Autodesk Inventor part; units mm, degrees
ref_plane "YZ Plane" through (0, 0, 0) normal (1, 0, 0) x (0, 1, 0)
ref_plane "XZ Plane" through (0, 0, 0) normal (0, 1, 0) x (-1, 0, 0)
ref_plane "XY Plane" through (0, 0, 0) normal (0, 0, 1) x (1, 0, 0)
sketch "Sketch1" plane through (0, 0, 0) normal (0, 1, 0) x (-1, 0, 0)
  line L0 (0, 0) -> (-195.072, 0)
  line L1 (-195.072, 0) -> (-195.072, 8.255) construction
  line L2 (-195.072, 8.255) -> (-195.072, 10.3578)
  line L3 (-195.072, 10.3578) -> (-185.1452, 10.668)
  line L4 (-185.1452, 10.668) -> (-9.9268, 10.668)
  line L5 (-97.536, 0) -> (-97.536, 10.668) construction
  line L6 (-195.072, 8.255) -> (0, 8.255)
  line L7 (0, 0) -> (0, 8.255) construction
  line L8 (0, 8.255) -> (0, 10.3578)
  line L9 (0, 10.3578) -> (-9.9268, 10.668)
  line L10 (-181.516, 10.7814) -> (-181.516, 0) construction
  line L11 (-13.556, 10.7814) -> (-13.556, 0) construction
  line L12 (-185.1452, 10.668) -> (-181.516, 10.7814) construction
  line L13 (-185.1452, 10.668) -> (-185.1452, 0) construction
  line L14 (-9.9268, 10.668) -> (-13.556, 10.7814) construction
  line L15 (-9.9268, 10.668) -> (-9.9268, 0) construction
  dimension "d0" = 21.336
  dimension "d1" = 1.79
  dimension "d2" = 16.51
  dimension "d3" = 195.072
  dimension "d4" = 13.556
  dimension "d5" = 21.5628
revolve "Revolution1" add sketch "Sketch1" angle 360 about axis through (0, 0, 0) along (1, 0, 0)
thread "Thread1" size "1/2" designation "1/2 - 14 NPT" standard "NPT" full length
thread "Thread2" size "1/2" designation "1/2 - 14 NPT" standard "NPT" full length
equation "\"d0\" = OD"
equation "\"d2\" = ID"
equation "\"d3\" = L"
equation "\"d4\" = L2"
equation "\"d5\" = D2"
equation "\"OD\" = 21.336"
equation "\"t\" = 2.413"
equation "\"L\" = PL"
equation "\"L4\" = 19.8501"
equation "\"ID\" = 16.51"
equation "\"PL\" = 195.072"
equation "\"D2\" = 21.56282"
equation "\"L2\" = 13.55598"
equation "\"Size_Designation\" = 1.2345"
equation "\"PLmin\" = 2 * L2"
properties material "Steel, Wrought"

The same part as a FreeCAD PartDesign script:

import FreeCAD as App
import Part
import Sketcher

V = App.Vector
Q = App.Units.Quantity

doc = App.newDocument("Part")
params = doc.addObject("Spreadsheet::Sheet", "Params")
for row, (alias, value) in enumerate([
    ("sketch1_width", "7.68 in"),
    ("sketch1_length", "0.391 in"),
    ("revolution_angle", "360 deg"),
], start=1):
    params.set(f"A{row}", alias)
    params.set(f"B{row}", "=" + value)
    params.setAlias(f"B{row}", alias)

body = doc.addObject("PartDesign::Body", "Body")

# Sketch on XZ plane
sketch1 = body.newObject("Sketcher::SketchObject", "Sketch")
sketch1.AttachmentSupport = (doc.getObject("XZ_Plane"), [""])
sketch1.MapMode = "FlatFace"
sketch1.addGeometry(Part.LineSegment(V(195.072, 10.3578, 0), V(195.072, 8.255, 0)), False)
sketch1.addGeometry(Part.LineSegment(V(195.072, 8.255, 0), V(0, 8.255, 0)), False)
sketch1.addGeometry(Part.LineSegment(V(0, 8.255, 0), V(0, 10.3578, 0)), False)
sketch1.addGeometry(Part.LineSegment(V(0, 10.3578, 0), V(9.9268, 10.668, 0)), False)
sketch1.addGeometry(Part.LineSegment(V(9.9268, 10.668, 0), V(185.1452, 10.668, 0)), False)
sketch1.addGeometry(Part.LineSegment(V(185.1452, 10.668, 0), V(195.072, 10.3578, 0)), False)
sketch1.addConstraint(Sketcher.Constraint("Coincident", 0, 2, 1, 1))
sketch1.addConstraint(Sketcher.Constraint("Coincident", 1, 2, 2, 1))
sketch1.addConstraint(Sketcher.Constraint("Coincident", 2, 2, 3, 1))
sketch1.addConstraint(Sketcher.Constraint("Coincident", 3, 2, 4, 1))
sketch1.addConstraint(Sketcher.Constraint("Coincident", 4, 2, 5, 1))
sketch1.addConstraint(Sketcher.Constraint("Coincident", 5, 2, 0, 1))
sketch1.addConstraint(Sketcher.Constraint("Vertical", 0))
sketch1.addConstraint(Sketcher.Constraint("Horizontal", 1))
sketch1.addConstraint(Sketcher.Constraint("Vertical", 2))
sketch1.addConstraint(Sketcher.Constraint("Horizontal", 4))
sketch1.addConstraint(Sketcher.Constraint("PointOnObject", 1, 2, -2))
sketch1.addConstraint(Sketcher.Constraint("Horizontal", 2, 2, 5, 2))
sketch1.addConstraint(Sketcher.Constraint("Equal", 3, 5))
sketch1.addConstraint(Sketcher.Constraint("DistanceX", 1, 2, 1, 1, Q("7.68 in")))
sketch1.addConstraint(Sketcher.Constraint("Angle", 3, Q("1.7898 deg")))
sketch1.addConstraint(Sketcher.Constraint("DistanceY", -1, 1, 3, 2, Q("0.42 in")))
sketch1.addConstraint(Sketcher.Constraint("Distance", 3, Q("0.391 in")))
sketch1.addConstraint(Sketcher.Constraint("DistanceY", -1, 1, 0, 2, Q("0.325 in")))
sketch1.setExpression("Constraints[13]", "Params.sketch1_width")
sketch1.setExpression("Constraints[16]", "Params.sketch1_length")
revolution = body.newObject("PartDesign::Revolution", "Revolution")
revolution.Profile = sketch1
revolution.ReferenceAxis = (sketch1, ["H_Axis"])
revolution.setExpression("Angle", "Params.revolution_angle")

doc.recompute()
